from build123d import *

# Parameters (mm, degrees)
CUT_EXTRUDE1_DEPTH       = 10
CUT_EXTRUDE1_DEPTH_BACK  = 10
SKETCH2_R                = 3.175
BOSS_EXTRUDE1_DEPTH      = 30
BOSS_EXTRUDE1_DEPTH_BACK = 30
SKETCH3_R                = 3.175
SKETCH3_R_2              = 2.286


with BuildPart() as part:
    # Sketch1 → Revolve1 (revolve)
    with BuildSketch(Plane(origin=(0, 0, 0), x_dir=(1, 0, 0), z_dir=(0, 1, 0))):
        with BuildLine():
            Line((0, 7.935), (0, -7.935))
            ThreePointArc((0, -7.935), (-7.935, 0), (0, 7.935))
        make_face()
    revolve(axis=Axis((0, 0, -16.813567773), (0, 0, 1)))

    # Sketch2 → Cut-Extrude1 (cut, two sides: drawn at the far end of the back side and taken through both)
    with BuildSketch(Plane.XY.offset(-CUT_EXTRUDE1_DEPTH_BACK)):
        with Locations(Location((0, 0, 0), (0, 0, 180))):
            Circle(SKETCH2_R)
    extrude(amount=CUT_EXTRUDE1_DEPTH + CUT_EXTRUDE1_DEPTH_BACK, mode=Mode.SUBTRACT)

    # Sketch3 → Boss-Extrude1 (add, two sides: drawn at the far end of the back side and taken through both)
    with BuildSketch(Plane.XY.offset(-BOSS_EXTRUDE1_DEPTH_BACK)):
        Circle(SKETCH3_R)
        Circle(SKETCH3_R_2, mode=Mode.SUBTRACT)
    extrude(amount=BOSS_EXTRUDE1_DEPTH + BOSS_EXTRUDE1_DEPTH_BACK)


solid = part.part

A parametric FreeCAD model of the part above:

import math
import FreeCAD as App
import Part
import Sketcher

doc = App.newDocument("Part")
params = doc.addObject("Spreadsheet::Sheet", "Params")
for row, (alias, value) in enumerate([
    ("revolution_angle", "360 deg"),
    ("sketch2_diameter", "6.35 mm"),
    ("sketch3_diameter", "6.35 mm"),
    ("pad1_length", "30 mm"),
    ("pad1_length2", "30 mm"),
], start=1):
    params.set(f"A{row}", alias)
    params.set(f"B{row}", "=" + value)
    params.setAlias(f"B{row}", alias)

body = doc.addObject("PartDesign::Body", "Body")

# Sketch on XZ plane
sketch1 = doc.addObject("Sketcher::SketchObject", "Sketch")
body.addObject(sketch1)
sketch1.AttachmentSupport = (doc.XZ_Plane, [""])
sketch1.MapMode = "FlatFace"
sketch1.addGeometry([
    Part.LineSegment(App.Vector(0, 8, 0), App.Vector(0, -8, 0)),
    Part.ArcOfCircle(Part.Circle(App.Vector(0, 0, 0), App.Vector(0, 0, 1), 8), math.radians(90), math.radians(270)),
], False)
sketch1.addConstraint([
    Sketcher.Constraint("Coincident", 0, 1, 1, 1),
    Sketcher.Constraint("Coincident", 1, 2, 0, 2),
    Sketcher.Constraint("Vertical", 0),
    Sketcher.Constraint("Coincident", 1, 3, -1, 1),
    Sketcher.Constraint("PointOnObject", 0, 1, -2),
    Sketcher.Constraint("Radius", 1, 7.935),
])
revolution = doc.addObject("PartDesign::Revolution", "Revolution")
body.addObject(revolution)
revolution.Profile = sketch1
revolution.ReferenceAxis = (sketch1, ["V_Axis"])
revolution.setExpression("Angle", "Params.revolution_angle")

# Sketch on XY plane
sketch2 = doc.addObject("Sketcher::SketchObject", "Sketch001")
body.addObject(sketch2)
sketch2.AttachmentSupport = (doc.XY_Plane, [""])
sketch2.MapMode = "FlatFace"
sketch2.addGeometry(Part.Circle(App.Vector(0, 0, 0), App.Vector(0, 0, 1), 3.2), False)
sketch2.addConstraint([
    Sketcher.Constraint("Coincident", 0, 3, -1, 1),
    Sketcher.Constraint("Diameter", 0, 6.35),
])
sketch2.setExpression("Constraints[1]", "Params.sketch2_diameter")
pocket1 = doc.addObject("PartDesign::Pocket", "Pocket")
body.addObject(pocket1)
pocket1.Profile = sketch2
pocket1.Type = "ThroughAll"
pocket1.Midplane = True

# Sketch on XY plane
sketch3 = doc.addObject("Sketcher::SketchObject", "Sketch002")
body.addObject(sketch3)
sketch3.AttachmentSupport = (doc.XY_Plane, [""])
sketch3.MapMode = "FlatFace"
sketch3.addGeometry([
    Part.Circle(App.Vector(0, 0, 0), App.Vector(0, 0, 1), 3.2),
    Part.Circle(App.Vector(0, 0, 0), App.Vector(0, 0, 1), 2.3),
], False)
sketch3.addConstraint([
    Sketcher.Constraint("Coincident", 0, 3, -1, 1),
    Sketcher.Constraint("Coincident", 1, 3, -1, 1),
    Sketcher.Constraint("Diameter", 0, 6.35),
    Sketcher.Constraint("Diameter", 1, 4.572),
])
sketch3.setExpression("Constraints[2]", "Params.sketch3_diameter")
pad1 = doc.addObject("PartDesign::Pad", "Pad")
body.addObject(pad1)
pad1.Profile = sketch3
pad1.Type = "TwoLengths"
pad1.setExpression("Length", "Params.pad1_length")
pad1.setExpression("Length2", "Params.pad1_length2")

doc.recompute()
